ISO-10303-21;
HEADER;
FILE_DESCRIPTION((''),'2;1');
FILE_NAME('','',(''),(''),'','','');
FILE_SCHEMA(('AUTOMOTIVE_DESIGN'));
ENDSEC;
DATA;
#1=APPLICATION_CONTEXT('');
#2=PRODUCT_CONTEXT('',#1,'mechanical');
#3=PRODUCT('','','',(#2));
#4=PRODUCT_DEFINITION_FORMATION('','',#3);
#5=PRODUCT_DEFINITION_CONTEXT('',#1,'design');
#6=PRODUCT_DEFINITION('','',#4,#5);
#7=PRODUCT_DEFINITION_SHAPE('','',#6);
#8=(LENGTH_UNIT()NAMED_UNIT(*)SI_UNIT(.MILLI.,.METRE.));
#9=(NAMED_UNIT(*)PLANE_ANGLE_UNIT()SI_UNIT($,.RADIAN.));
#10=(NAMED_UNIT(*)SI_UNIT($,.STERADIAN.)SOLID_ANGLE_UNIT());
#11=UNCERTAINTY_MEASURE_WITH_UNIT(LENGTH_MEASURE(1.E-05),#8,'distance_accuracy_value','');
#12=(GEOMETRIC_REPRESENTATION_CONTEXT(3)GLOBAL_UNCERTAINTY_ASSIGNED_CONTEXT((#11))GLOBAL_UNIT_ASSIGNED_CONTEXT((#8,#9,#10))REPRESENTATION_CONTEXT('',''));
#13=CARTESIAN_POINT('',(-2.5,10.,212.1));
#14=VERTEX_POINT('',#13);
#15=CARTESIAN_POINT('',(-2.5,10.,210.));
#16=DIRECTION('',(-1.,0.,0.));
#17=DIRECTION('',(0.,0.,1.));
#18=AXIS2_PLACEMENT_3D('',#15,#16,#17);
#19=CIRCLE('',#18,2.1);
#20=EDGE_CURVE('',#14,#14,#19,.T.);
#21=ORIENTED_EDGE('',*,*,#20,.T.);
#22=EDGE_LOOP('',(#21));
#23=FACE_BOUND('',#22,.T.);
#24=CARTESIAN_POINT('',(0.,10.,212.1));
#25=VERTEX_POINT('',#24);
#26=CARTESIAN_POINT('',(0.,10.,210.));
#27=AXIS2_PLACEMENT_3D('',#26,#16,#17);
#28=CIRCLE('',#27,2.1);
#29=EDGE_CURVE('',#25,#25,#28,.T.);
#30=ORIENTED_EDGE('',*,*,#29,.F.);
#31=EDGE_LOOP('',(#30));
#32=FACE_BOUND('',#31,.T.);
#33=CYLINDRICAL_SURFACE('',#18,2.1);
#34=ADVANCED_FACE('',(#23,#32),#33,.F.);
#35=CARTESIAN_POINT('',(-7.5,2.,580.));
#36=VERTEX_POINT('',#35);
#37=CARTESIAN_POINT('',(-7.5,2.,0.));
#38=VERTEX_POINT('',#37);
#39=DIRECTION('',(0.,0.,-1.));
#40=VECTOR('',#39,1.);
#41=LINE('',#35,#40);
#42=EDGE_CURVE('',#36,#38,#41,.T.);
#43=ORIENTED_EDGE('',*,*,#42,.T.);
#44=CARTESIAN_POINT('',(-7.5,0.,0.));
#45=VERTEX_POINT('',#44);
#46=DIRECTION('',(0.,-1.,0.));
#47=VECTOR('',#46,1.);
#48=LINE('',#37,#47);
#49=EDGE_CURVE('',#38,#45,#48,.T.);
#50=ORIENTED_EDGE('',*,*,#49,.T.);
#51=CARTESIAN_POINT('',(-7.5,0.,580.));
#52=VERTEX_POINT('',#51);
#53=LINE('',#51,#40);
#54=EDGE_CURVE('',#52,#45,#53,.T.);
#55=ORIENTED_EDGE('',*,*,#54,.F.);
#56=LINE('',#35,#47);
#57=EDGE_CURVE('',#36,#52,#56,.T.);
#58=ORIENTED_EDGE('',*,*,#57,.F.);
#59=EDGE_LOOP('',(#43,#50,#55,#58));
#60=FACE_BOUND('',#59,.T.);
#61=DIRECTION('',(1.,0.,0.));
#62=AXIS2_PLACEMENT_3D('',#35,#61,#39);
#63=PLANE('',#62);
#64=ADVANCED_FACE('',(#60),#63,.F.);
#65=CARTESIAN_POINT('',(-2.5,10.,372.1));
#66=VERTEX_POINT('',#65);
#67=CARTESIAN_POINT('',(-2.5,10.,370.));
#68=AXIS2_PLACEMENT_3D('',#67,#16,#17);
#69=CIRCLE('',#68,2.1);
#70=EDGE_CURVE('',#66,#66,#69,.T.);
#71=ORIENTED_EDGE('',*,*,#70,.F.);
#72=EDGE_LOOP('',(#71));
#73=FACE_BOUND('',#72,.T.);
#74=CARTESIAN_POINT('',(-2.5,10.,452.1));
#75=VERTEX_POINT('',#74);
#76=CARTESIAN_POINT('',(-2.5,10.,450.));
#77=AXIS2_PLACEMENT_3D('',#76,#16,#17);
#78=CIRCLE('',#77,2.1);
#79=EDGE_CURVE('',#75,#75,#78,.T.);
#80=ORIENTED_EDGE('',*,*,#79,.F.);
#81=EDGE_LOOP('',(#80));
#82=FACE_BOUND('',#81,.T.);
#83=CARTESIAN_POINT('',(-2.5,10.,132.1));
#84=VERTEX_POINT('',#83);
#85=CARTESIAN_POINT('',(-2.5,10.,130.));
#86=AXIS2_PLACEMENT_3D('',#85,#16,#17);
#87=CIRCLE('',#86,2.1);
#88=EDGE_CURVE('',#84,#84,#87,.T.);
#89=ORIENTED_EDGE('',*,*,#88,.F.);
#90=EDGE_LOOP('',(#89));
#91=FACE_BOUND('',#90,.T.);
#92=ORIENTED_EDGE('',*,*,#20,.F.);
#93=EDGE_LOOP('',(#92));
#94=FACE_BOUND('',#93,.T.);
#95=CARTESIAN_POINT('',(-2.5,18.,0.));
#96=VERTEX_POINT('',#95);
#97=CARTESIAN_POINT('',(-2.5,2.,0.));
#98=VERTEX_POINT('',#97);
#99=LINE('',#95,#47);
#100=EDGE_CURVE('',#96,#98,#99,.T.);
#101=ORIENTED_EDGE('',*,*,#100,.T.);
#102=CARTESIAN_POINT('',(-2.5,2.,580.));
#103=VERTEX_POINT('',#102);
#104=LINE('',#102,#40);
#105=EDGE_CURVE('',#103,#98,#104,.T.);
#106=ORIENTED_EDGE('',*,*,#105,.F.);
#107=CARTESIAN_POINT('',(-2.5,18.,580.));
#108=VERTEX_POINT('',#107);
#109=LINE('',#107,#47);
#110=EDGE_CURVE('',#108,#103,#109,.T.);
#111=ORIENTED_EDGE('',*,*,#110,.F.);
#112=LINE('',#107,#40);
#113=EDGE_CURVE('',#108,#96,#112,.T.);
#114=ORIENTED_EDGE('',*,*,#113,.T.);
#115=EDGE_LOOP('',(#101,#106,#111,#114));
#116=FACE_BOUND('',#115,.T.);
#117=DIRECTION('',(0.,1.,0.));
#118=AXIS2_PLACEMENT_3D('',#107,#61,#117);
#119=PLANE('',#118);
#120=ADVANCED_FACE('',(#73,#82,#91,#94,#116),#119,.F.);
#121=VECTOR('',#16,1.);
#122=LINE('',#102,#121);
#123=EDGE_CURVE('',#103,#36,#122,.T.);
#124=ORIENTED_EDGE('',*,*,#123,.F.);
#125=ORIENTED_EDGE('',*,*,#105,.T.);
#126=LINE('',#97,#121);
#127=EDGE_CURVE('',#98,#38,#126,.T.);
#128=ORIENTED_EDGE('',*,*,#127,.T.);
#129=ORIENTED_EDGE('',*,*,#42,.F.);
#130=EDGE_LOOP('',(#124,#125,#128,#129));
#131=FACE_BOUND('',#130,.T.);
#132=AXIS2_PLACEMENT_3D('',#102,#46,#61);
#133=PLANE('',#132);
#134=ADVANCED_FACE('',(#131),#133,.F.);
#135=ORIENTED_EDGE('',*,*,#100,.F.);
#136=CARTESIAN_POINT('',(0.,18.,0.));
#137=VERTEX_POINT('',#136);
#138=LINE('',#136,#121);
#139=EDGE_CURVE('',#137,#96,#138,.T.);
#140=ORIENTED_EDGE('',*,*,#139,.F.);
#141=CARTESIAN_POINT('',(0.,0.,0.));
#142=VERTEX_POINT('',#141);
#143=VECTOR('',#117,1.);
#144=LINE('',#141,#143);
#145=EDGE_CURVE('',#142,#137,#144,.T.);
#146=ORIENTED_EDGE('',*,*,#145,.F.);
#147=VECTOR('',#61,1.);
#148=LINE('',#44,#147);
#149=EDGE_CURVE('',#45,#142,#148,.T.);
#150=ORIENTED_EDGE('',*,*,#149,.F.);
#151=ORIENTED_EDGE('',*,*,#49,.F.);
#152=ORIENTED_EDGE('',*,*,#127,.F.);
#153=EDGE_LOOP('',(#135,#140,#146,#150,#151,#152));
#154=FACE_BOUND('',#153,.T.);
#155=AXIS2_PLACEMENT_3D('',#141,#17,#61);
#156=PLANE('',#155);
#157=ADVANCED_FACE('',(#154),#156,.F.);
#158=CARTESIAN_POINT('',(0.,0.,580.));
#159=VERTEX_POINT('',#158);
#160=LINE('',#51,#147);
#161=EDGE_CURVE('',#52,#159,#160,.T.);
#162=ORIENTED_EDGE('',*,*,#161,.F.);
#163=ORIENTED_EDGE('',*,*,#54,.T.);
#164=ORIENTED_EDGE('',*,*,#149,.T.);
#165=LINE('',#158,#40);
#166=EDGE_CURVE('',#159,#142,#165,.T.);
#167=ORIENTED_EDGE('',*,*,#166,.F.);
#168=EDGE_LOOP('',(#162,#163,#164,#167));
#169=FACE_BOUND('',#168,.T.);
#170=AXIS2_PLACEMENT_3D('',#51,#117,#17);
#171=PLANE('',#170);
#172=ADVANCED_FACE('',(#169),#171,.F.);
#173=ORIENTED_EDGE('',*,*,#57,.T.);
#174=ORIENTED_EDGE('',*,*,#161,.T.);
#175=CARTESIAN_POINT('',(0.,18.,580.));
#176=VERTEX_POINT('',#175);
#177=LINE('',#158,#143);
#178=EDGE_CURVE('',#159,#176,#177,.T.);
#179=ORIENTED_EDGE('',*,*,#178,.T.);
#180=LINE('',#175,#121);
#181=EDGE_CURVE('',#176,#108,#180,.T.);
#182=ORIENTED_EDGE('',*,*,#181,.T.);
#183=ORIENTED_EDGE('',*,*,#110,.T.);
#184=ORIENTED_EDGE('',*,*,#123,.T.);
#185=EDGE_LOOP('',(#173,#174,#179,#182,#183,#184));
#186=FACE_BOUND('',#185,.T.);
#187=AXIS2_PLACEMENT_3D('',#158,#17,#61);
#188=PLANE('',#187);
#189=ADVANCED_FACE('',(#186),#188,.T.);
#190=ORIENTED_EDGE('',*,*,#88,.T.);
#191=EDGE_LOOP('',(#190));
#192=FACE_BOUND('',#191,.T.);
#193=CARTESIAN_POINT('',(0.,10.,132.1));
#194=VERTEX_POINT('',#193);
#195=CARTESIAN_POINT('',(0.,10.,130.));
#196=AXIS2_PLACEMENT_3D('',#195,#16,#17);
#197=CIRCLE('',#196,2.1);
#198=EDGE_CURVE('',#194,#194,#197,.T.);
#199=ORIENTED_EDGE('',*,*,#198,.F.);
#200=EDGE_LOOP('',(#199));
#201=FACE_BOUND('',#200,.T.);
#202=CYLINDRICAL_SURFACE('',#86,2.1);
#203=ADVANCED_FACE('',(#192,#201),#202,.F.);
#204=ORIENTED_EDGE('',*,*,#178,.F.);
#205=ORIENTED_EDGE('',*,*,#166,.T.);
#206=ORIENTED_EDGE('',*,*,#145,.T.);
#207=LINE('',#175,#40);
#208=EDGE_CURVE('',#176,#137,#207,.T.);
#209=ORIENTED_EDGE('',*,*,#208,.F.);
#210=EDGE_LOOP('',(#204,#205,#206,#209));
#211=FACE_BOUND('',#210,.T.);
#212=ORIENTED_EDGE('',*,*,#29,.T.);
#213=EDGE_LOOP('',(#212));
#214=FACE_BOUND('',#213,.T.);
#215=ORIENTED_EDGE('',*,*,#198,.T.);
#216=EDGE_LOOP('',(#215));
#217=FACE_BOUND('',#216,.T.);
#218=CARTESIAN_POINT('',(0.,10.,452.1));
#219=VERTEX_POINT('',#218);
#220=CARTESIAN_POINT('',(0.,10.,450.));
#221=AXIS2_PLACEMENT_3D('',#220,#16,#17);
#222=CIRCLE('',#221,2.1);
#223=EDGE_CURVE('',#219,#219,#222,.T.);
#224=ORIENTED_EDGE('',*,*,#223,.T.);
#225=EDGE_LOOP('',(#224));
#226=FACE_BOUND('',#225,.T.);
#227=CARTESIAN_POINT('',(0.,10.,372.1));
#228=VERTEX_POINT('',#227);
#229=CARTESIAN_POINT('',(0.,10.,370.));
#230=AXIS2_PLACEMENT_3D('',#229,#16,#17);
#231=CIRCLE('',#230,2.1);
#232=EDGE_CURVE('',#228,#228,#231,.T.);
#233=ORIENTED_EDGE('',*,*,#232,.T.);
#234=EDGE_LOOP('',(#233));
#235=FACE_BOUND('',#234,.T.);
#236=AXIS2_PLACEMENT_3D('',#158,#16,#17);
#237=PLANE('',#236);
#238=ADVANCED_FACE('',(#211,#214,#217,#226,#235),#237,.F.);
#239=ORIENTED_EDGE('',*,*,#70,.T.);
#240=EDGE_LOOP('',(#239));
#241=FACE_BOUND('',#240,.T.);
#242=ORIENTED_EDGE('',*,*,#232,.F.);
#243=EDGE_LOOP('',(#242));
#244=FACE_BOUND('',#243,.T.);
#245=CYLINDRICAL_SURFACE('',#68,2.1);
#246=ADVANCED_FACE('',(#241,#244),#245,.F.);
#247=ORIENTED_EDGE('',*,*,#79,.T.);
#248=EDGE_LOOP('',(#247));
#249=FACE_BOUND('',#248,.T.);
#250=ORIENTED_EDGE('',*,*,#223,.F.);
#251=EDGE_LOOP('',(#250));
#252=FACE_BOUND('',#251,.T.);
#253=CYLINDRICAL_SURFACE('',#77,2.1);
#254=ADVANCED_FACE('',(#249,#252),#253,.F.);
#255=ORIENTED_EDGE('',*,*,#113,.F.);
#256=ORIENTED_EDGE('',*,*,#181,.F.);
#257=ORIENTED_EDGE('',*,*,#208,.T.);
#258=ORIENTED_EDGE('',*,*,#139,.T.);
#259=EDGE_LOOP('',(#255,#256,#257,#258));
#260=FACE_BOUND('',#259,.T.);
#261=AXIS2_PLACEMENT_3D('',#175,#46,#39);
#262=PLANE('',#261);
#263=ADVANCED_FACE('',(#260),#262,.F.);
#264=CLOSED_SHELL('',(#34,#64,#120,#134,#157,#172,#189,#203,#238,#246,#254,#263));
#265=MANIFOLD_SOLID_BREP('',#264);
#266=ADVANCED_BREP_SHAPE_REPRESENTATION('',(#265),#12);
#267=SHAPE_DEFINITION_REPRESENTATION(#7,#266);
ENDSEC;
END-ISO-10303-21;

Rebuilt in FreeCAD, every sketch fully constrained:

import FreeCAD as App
import Part
import Sketcher

doc = App.newDocument("Part")
body = doc.addObject("PartDesign::Body", "Body")

sketch1 = body.newObject("Sketcher::SketchObject", "Sketch")
sketch1.AttachmentSupport = (doc.getObject("XY_Plane"), [""])
sketch1.MapMode = "FlatFace"
sketch1.addGeometry([
    Part.LineSegment(App.Vector(0, 0, 0), App.Vector(0, 18, 0)),
    Part.LineSegment(App.Vector(0, 18, 0), App.Vector(-2.5, 18, 0)),
    Part.LineSegment(App.Vector(-2.5, 18, 0), App.Vector(-2.5, 2, 0)),
    Part.LineSegment(App.Vector(-2.5, 2, 0), App.Vector(-7.5, 2, 0)),
    Part.LineSegment(App.Vector(-7.5, 2, 0), App.Vector(-7.5, 0, 0)),
    Part.LineSegment(App.Vector(-7.5, 0, 0), App.Vector(0, 0, 0)),
], False)
sketch1.addConstraint([
    Sketcher.Constraint("Coincident", 0, 2, 1, 1),
    Sketcher.Constraint("Coincident", 1, 2, 2, 1),
    Sketcher.Constraint("Coincident", 2, 2, 3, 1),
    Sketcher.Constraint("Coincident", 3, 2, 4, 1),
    Sketcher.Constraint("Coincident", 4, 2, 5, 1),
    Sketcher.Constraint("Coincident", 5, 2, 0, 1),
    Sketcher.Constraint("Vertical", 0),
    Sketcher.Constraint("Horizontal", 1),
    Sketcher.Constraint("Vertical", 2),
    Sketcher.Constraint("Horizontal", 3),
    Sketcher.Constraint("Vertical", 4),
    Sketcher.Constraint("Horizontal", 5),
    Sketcher.Constraint("Coincident", 5, 2, -1, 1),
    Sketcher.Constraint("DistanceX", 3, 2, 3, 1, 5.0),
    Sketcher.Constraint("DistanceY", 0, 1, 0, 2, 18.0),
    Sketcher.Constraint("DistanceY", 2, 2, 2, 1, 16.0),
    Sketcher.Constraint("DistanceX", 1, 2, 1, 1, 2.5),
])
pad1 = body.newObject("PartDesign::Pad", "Pad")
pad1.Profile = sketch1
pad1.Length = 580

sketch2 = body.newObject("Sketcher::SketchObject", "Sketch001")
sketch2.AttachmentSupport = (doc.getObject("YZ_Plane"), [""])
sketch2.MapMode = "FlatFace"
sketch2.AttachmentOffset = App.Placement(App.Vector(0, 0, -2.5), App.Rotation())
sketch2.addGeometry([
    Part.Circle(App.Vector(10, 130, 0), App.Vector(0, 0, 1), 2.1),
    Part.Circle(App.Vector(10, 210, 0), App.Vector(0, 0, 1), 2.1),
    Part.Circle(App.Vector(10, 370, 0), App.Vector(0, 0, 1), 2.1),
    Part.Circle(App.Vector(10, 450, 0), App.Vector(0, 0, 1), 2.1),
], False)
sketch2.addConstraint([
    Sketcher.Constraint("Equal", 0, 1),
    Sketcher.Constraint("Equal", 1, 2),
    Sketcher.Constraint("Equal", 2, 3),
    Sketcher.Constraint("Vertical", 0, 3, 1, 3),
    Sketcher.Constraint("Vertical", 1, 3, 2, 3),
    Sketcher.Constraint("Vertical", 2, 3, 3, 3),
    Sketcher.Constraint("Diameter", 0, 4.2),
    Sketcher.Constraint("DistanceX", -1, 1, 0, 3, 10.0),
    Sketcher.Constraint("DistanceY", -1, 1, 0, 3, 130.0),
    Sketcher.Constraint("DistanceY", -1, 1, 1, 3, 210.0),
    Sketcher.Constraint("DistanceY", -1, 1, 2, 3, 370.0),
    Sketcher.Constraint("DistanceY", -1, 1, 3, 3, 450.0),
])
doc.recompute()
hole = body.newObject("PartDesign::Hole", "Hole")
hole.Profile = sketch2
hole.ThreadType = "None"
hole.Diameter = 4.2
hole.DepthType = "ThroughAll"
hole.Reversed = True

doc.recompute()
